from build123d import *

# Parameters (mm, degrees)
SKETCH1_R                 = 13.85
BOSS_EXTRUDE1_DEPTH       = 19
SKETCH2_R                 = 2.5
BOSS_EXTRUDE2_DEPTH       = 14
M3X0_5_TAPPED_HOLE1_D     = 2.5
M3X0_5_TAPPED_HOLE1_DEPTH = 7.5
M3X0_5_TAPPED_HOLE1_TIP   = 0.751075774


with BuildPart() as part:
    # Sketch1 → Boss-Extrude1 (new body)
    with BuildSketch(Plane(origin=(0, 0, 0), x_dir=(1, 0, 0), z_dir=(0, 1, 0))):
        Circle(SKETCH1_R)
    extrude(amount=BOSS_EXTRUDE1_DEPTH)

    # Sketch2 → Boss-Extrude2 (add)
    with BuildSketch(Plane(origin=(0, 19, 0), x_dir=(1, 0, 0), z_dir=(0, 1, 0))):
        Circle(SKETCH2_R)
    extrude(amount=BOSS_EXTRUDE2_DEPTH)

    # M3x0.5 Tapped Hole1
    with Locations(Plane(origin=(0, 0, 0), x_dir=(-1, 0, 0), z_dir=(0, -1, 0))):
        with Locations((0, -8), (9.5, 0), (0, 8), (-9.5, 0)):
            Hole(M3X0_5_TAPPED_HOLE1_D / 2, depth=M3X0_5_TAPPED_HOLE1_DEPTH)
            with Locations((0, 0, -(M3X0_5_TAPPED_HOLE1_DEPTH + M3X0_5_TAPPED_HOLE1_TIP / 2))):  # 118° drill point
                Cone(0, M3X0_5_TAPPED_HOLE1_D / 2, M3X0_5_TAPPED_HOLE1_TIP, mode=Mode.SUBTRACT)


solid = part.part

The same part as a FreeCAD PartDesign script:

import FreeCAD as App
import Part
import Sketcher
from FreeCAD import Vector

doc = App.newDocument("Part")
params = doc.addObject("Spreadsheet::Sheet", "Params")
for row, (alias, value) in enumerate([
    ("sketch1_diameter", "27.7 mm"),
    ("pad1_length", "19 mm"),
    ("sketch2_diameter", "5 mm"),
    ("pad2_length", "14 mm"),
    ("sketch3_diameter", "2.5 mm"),
    ("hole_diameter", "2.5 mm"),
    ("hole_depth", "7.5 mm"),
], start=1):
    params.set(f"A{row}", alias)
    params.set(f"B{row}", "=" + value)
    params.setAlias(f"B{row}", alias)

body = doc.addObject("PartDesign::Body", "Body")

sketch1 = body.newObject("Sketcher::SketchObject", "Sketch")
sketch1.AttachmentSupport = (doc.getObject("XZ_Plane"), [""])
sketch1.MapMode = "FlatFace"
sketch1.addGeometry(Part.Circle(Vector(0, 0, 0), Vector(0, 0, 1), 14), False)
sketch1.addConstraint([
    Sketcher.Constraint("Coincident", 0, 3, -1, 1),
    Sketcher.Constraint("Diameter", 0, 27.7),
])
sketch1.setExpression("Constraints[1]", "Params.sketch1_diameter")
pad1 = body.newObject("PartDesign::Pad", "Pad")
pad1.Profile = sketch1
pad1.setExpression("Length", "Params.pad1_length")
pad1.Reversed = True

sketch2 = body.newObject("Sketcher::SketchObject", "Sketch001")
sketch2.AttachmentSupport = (doc.getObject("XZ_Plane"), [""])
sketch2.MapMode = "FlatFace"
sketch2.AttachmentOffset = App.Placement(Vector(0, 0, -19), App.Rotation())
sketch2.addGeometry(Part.Circle(Vector(0, 0, 0), Vector(0, 0, 1), 2.5), False)
sketch2.addConstraint([
    Sketcher.Constraint("Coincident", 0, 3, -1, 1),
    Sketcher.Constraint("Diameter", 0, 5.0),
])
sketch2.setExpression("Constraints[1]", "Params.sketch2_diameter")
pad2 = body.newObject("PartDesign::Pad", "Pad001")
pad2.Profile = sketch2
pad2.setExpression("Length", "Params.pad2_length")
pad2.Reversed = True

sketch3 = body.newObject("Sketcher::SketchObject", "Sketch002")
sketch3.AttachmentSupport = (doc.getObject("XZ_Plane"), [""])
sketch3.MapMode = "FlatFace"
sketch3.addGeometry([
    Part.Circle(Vector(0, 8, 0), Vector(0, 0, 1), 1.2),
    Part.Circle(Vector(-9.5, 0, 0), Vector(0, 0, 1), 1.2),
    Part.Circle(Vector(0, -8, 0), Vector(0, 0, 1), 1.2),
    Part.Circle(Vector(9.5, 0, 0), Vector(0, 0, 1), 1.2),
], False)
sketch3.addConstraint([
    Sketcher.Constraint("Equal", 0, 1),
    Sketcher.Constraint("Equal", 1, 2),
    Sketcher.Constraint("Equal", 2, 3),
    Sketcher.Constraint("Symmetric", 0, 3, 2, 3, -1, 1),
    Sketcher.Constraint("Symmetric", 1, 3, 3, 3, -1, 1),
    Sketcher.Constraint("PointOnObject", 0, 3, -2),
    Sketcher.Constraint("PointOnObject", 1, 3, -1),
    Sketcher.Constraint("Diameter", 0, 2.5),
    Sketcher.Constraint("DistanceY", -1, 1, 0, 3, 8.0),
    Sketcher.Constraint("DistanceX", 1, 3, 3, 3, 19.0),
])
sketch3.setExpression("Constraints[7]", "Params.sketch3_diameter")
doc.recompute()
hole = body.newObject("PartDesign::Hole", "Hole")
hole.Profile = sketch3
hole.ThreadType = "None"
hole.setExpression("Diameter", "Params.hole_diameter")
hole.DepthType = "Dimension"
hole.setExpression("Depth", "Params.hole_depth")
hole.DrillPoint = "Angled"
hole.DrillPointAngle = 118

doc.recompute()
